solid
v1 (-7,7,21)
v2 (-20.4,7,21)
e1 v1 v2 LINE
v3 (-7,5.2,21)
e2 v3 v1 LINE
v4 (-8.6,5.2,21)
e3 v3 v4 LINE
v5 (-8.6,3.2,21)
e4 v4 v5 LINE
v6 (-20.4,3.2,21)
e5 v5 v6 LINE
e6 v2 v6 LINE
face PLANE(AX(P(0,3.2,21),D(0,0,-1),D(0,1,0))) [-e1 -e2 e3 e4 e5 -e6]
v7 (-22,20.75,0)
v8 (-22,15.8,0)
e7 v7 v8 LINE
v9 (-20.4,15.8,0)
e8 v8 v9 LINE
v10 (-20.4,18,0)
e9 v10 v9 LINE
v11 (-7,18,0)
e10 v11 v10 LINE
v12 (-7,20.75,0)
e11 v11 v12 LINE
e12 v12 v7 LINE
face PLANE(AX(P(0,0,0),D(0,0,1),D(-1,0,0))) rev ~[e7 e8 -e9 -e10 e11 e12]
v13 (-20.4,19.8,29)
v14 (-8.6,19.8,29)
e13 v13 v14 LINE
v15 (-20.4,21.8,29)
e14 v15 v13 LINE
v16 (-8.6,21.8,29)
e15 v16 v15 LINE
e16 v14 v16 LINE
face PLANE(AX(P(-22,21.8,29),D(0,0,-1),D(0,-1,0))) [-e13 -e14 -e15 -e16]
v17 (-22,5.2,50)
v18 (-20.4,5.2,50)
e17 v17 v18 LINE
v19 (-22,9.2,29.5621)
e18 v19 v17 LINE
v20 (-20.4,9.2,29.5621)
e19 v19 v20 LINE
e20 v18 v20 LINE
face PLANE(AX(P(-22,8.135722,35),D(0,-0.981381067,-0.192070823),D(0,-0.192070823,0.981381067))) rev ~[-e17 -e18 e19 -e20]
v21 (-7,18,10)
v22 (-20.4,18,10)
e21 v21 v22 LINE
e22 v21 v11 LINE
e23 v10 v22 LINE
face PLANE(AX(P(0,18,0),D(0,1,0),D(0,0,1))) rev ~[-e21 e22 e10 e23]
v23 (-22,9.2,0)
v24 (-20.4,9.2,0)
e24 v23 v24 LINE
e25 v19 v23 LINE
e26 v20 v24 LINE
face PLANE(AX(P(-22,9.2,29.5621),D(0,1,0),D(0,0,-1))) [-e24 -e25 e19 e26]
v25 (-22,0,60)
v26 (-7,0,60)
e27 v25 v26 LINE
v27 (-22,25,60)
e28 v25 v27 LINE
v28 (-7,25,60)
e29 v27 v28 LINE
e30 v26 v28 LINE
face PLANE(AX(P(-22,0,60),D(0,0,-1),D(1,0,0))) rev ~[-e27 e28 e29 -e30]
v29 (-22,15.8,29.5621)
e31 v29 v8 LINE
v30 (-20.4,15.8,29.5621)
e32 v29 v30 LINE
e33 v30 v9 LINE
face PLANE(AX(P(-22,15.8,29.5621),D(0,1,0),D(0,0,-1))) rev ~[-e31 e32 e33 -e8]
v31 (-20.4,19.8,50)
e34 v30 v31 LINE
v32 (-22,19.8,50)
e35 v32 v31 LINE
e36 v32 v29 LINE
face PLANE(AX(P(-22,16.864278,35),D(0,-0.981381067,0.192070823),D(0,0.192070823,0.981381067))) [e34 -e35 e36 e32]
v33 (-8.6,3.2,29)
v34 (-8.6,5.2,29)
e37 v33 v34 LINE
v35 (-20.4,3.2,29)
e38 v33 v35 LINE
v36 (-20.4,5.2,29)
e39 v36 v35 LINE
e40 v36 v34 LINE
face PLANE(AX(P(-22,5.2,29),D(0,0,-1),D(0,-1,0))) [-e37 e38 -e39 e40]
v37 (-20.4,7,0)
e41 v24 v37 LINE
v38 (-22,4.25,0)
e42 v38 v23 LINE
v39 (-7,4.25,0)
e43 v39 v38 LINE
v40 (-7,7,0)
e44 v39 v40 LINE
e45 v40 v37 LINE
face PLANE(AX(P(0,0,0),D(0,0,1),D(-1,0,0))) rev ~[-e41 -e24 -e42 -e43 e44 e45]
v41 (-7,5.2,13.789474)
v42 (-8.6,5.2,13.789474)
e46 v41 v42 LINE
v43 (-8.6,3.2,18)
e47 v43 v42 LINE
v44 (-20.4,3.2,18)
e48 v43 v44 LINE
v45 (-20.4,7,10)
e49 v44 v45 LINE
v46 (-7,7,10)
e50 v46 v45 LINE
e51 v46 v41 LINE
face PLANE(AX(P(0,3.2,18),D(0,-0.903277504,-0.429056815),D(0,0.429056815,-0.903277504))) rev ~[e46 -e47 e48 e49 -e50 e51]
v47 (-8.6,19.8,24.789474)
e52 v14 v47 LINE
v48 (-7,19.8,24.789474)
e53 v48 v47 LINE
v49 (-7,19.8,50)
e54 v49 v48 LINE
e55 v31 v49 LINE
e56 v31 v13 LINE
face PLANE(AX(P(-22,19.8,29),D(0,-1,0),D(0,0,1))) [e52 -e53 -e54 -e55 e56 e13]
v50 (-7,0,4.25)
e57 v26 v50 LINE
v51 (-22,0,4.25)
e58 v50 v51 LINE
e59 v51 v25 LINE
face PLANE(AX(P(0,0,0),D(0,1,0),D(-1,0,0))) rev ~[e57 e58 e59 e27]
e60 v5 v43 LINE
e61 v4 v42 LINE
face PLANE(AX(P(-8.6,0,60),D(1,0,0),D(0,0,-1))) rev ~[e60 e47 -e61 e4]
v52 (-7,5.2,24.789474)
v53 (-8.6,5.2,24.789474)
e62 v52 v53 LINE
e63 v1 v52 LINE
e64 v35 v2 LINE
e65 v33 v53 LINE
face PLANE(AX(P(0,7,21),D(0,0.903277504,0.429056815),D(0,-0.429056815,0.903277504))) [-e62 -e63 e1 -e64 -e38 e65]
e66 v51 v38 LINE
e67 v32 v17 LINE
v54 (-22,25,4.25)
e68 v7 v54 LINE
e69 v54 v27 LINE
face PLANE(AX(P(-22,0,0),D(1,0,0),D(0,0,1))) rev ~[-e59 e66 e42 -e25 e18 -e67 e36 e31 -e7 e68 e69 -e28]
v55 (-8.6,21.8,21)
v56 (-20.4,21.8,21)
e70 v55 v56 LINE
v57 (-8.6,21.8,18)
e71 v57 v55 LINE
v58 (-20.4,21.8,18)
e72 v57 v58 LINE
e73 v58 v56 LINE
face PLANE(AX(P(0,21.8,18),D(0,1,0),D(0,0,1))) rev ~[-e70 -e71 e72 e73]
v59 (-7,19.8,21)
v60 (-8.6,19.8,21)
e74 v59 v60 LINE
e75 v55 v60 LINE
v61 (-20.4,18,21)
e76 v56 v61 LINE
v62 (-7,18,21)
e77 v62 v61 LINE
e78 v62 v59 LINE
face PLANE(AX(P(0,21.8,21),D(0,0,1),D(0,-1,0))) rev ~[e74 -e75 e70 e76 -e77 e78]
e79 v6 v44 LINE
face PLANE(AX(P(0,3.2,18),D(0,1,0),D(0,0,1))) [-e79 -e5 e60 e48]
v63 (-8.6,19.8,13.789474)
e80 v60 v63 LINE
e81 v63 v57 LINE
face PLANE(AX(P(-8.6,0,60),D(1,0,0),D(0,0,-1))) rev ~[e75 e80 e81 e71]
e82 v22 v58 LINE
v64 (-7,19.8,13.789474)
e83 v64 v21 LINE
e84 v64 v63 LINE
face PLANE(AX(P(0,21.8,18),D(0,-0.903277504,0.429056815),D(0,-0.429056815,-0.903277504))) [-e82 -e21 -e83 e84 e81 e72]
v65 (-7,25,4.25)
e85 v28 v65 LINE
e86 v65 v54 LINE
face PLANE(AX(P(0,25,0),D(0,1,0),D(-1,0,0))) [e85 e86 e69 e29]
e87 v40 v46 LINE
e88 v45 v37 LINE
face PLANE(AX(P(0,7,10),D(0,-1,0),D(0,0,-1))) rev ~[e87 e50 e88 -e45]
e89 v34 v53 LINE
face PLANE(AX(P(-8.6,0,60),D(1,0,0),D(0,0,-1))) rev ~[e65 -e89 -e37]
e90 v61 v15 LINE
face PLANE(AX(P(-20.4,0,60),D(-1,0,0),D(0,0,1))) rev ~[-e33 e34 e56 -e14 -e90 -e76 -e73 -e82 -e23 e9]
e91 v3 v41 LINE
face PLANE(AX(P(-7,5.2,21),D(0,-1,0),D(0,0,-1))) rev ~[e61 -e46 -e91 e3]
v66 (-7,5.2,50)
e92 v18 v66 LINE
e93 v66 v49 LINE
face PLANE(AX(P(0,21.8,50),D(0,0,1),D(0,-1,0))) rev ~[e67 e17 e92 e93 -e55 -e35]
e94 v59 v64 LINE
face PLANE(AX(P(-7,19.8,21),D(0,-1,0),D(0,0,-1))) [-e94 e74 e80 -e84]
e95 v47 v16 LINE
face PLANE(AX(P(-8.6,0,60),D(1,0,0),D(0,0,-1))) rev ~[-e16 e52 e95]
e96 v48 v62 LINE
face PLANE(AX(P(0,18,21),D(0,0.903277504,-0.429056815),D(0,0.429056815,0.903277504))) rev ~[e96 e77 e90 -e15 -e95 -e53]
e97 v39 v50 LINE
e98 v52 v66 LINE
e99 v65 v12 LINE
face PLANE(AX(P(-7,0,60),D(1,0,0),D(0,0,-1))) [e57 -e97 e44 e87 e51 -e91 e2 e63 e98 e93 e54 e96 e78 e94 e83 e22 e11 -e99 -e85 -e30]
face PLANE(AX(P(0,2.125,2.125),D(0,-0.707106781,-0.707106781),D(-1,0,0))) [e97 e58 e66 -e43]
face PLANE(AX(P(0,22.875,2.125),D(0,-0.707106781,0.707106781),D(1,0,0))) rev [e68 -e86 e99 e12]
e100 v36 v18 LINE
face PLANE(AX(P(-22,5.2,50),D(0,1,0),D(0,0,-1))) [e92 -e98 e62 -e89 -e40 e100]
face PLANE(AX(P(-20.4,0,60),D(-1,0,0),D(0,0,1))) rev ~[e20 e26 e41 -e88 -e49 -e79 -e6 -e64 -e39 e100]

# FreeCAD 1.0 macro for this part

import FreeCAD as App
import Part
import Sketcher

V = App.Vector


def edges_at(feature, points):
    """Names of the edges that pass closest to the given points."""
    edges = feature.Shape.Edges
    near = lambda p: min(range(len(edges)), key=lambda i: edges[i].distToShape(Part.Vertex(*p))[0])
    return sorted({f"Edge{near(p) + 1}" for p in points})

doc = App.newDocument("Part")
body = doc.addObject("PartDesign::Body", "Body")

# Sketch on XZ plane
sketch1 = body.newObject("Sketcher::SketchObject", "Sketch")
sketch1.AttachmentSupport = (doc.getObject("XZ_Plane"), [""])
sketch1.MapMode = "FlatFace"
sketch1.addGeometry([
    Part.LineSegment(V(0, 60, 0), V(0, 0, 0)),
    Part.LineSegment(V(0, 0, 0), V(-22, 0, 0)),
    Part.LineSegment(V(-22, 0, 0), V(-22, 60, 0)),
    Part.LineSegment(V(-22, 60, 0), V(0, 60, 0)),
], False)
sketch1.addConstraint([
    Sketcher.Constraint("Coincident", 0, 2, 1, 1),
    Sketcher.Constraint("Coincident", 1, 2, 2, 1),
    Sketcher.Constraint("Coincident", 2, 2, 3, 1),
    Sketcher.Constraint("Coincident", 3, 2, 0, 1),
    Sketcher.Constraint("Vertical", 0),
    Sketcher.Constraint("Horizontal", 1),
    Sketcher.Constraint("Vertical", 2),
    Sketcher.Constraint("Horizontal", 3),
    Sketcher.Constraint("Coincident", 0, 2, -1, 1),
    Sketcher.Constraint("DistanceX", 1, 2, 1, 1, 22.0),
    Sketcher.Constraint("DistanceY", 0, 2, 0, 1, 60.0),
])
pad1 = body.newObject("PartDesign::Pad", "Pad")
pad1.Profile = sketch1
pad1.Length = 25
pad1.Reversed = True

# Sketch on YZ plane
sketch2 = body.newObject("Sketcher::SketchObject", "Sketch001")
sketch2.AttachmentSupport = (doc.getObject("YZ_Plane"), [""])
sketch2.MapMode = "FlatFace"
sketch2.addGeometry([
    Part.LineSegment(V(18, 32, 0), V(21.8, 40, 0)),  # 0
    Part.LineSegment(V(21.8, 40, 0), V(3.2, 40, 0)),  # 1
    Part.LineSegment(V(3.2, 40, 0), V(7, 32, 0)),  # 2
    Part.LineSegment(V(7, 32, 0), V(3.2, 32, 0)),  # 3
    Part.LineSegment(V(3.2, 32, 0), V(3.2, 29, 0)),  # 4
    Part.LineSegment(V(3.2, 29, 0), V(7, 21, 0)),  # 5
    Part.LineSegment(V(7, 21, 0), V(3.2, 21, 0)),  # 6
    Part.LineSegment(V(3.2, 21, 0), V(3.2, 18, 0)),  # 7
    Part.LineSegment(V(3.2, 18, 0), V(7, 10, 0)),  # 8
    Part.LineSegment(V(7, 10, 0), V(7, 0, 0)),  # 9
    Part.LineSegment(V(7, 0, 0), V(18, 0, 0)),  # 10
    Part.LineSegment(V(18, 0, 0), V(18, 10, 0)),  # 11
    Part.LineSegment(V(18, 10, 0), V(21.8, 18, 0)),  # 12
    Part.LineSegment(V(21.8, 18, 0), V(21.8, 21, 0)),  # 13
    Part.LineSegment(V(21.8, 21, 0), V(18, 21, 0)),  # 14
    Part.LineSegment(V(18, 21, 0), V(21.8, 29, 0)),  # 15
    Part.LineSegment(V(21.8, 29, 0), V(21.8, 32, 0)),  # 16
    Part.LineSegment(V(21.8, 32, 0), V(18, 32, 0)),  # 17
], False)
sketch2.addConstraint([
    Sketcher.Constraint("Coincident", 0, 2, 1, 1),
    Sketcher.Constraint("Coincident", 1, 2, 2, 1),
    Sketcher.Constraint("Coincident", 2, 2, 3, 1),
    Sketcher.Constraint("Coincident", 3, 2, 4, 1),
    Sketcher.Constraint("Coincident", 4, 2, 5, 1),
    Sketcher.Constraint("Coincident", 5, 2, 6, 1),
    Sketcher.Constraint("Coincident", 6, 2, 7, 1),
    Sketcher.Constraint("Coincident", 7, 2, 8, 1),
    Sketcher.Constraint("Coincident", 8, 2, 9, 1),
    Sketcher.Constraint("Coincident", 9, 2, 10, 1),
    Sketcher.Constraint("Coincident", 10, 2, 11, 1),
    Sketcher.Constraint("Coincident", 11, 2, 12, 1),
    Sketcher.Constraint("Coincident", 12, 2, 13, 1),
    Sketcher.Constraint("Coincident", 13, 2, 14, 1),
    Sketcher.Constraint("Coincident", 14, 2, 15, 1),
    Sketcher.Constraint("Coincident", 15, 2, 16, 1),
    Sketcher.Constraint("Coincident", 16, 2, 17, 1),
    Sketcher.Constraint("Coincident", 17, 2, 0, 1),
    Sketcher.Constraint("Horizontal", 1),
    Sketcher.Constraint("Horizontal", 3),
    Sketcher.Constraint("Vertical", 4),
    Sketcher.Constraint("Horizontal", 6),
    Sketcher.Constraint("Vertical", 7),
    Sketcher.Constraint("Vertical", 9),
    Sketcher.Constraint("Horizontal", 10),
    Sketcher.Constraint("Vertical", 11),
    Sketcher.Constraint("Vertical", 13),
    Sketcher.Constraint("Horizontal", 14),
    Sketcher.Constraint("Vertical", 16),
    Sketcher.Constraint("Horizontal", 17),
    Sketcher.Constraint("PointOnObject", 9, 2, -1),
    Sketcher.Constraint("Parallel", 2, 5),
    Sketcher.Constraint("Parallel", 5, 8),
    Sketcher.Constraint("Parallel", 0, 12),
    Sketcher.Constraint("Parallel", 12, 15),
    Sketcher.Constraint("Horizontal", 8, 2, 11, 2),
    Sketcher.Constraint("Horizontal", 7, 2, 12, 2),
    Sketcher.Constraint("Horizontal", 6, 2, 13, 2),
    Sketcher.Constraint("Horizontal", 4, 2, 15, 2),
    Sketcher.Constraint("Horizontal", 3, 2, 16, 2),
    Sketcher.Constraint("Vertical", 1, 2, 3, 2),
    Sketcher.Constraint("Vertical", 2, 2, 5, 2),
    Sketcher.Constraint("Vertical", 4, 2, 6, 2),
    Sketcher.Constraint("Vertical", 5, 2, 8, 2),
    Sketcher.Constraint("Vertical", 0, 2, 12, 2),
    Sketcher.Constraint("Vertical", 11, 2, 14, 2),
    Sketcher.Constraint("Equal", 6, 14),
    Sketcher.Constraint("Equal", 4, 7),
    Sketcher.Constraint("DistanceY", 4, 2, 4, 1, 3.0),
    Sketcher.Constraint("DistanceY", -1, 1, 0, 2, 40.0),
    Sketcher.Constraint("DistanceY", 2, 2, 1, 2, 8.0),
    Sketcher.Constraint("DistanceX", -1, 1, 1, 2, 3.2),
    Sketcher.Constraint("DistanceX", 10, 1, 10, 2, 11.0),
    Sketcher.Constraint("DistanceX", 1, 2, 1, 1, 18.6),
])
pocket1 = body.newObject("PartDesign::Pocket", "Pocket")
pocket1.Profile = sketch2
pocket1.Type = "ThroughAll"
doc.recompute()

chamfer = body.newObject("PartDesign::Chamfer", "Chamfer")
chamfer.Base = (pocket1, edges_at(pocket1, [(-11, 0, 0), (-11, 25, 0)]))
chamfer.Size = 4.25

# Sketch on YZ plane
sketch3 = body.newObject("Sketcher::SketchObject", "Sketch002")
sketch3.AttachmentSupport = (doc.getObject("YZ_Plane"), [""])
sketch3.MapMode = "FlatFace"
sketch3.addGeometry([
    Part.LineSegment(V(21.8, 29, 0), V(21.8, 50, 0)),  # 0
    Part.LineSegment(V(21.8, 50, 0), V(3.2, 50, 0)),  # 1
    Part.LineSegment(V(3.2, 50, 0), V(3.2, 30, 0)),  # 2
    Part.LineSegment(V(3.2, 30, 0), V(12, 30, 0)),  # 3
    Part.LineSegment(V(12, 30, 0), V(12, 40, 0)),  # 4
    Part.LineSegment(V(12, 40, 0), V(16.6, 40, 0)),  # 5
    Part.LineSegment(V(16.6, 40, 0), V(16.6, 29, 0)),  # 6
    Part.LineSegment(V(16.6, 29, 0), V(21.8, 29, 0)),  # 7
], False)
sketch3.addConstraint([
    Sketcher.Constraint("Coincident", 0, 2, 1, 1),
    Sketcher.Constraint("Coincident", 1, 2, 2, 1),
    Sketcher.Constraint("Coincident", 2, 2, 3, 1),
    Sketcher.Constraint("Coincident", 3, 2, 4, 1),
    Sketcher.Constraint("Coincident", 4, 2, 5, 1),
    Sketcher.Constraint("Coincident", 5, 2, 6, 1),
    Sketcher.Constraint("Coincident", 6, 2, 7, 1),
    Sketcher.Constraint("Coincident", 7, 2, 0, 1),
    Sketcher.Constraint("Vertical", 0),
    Sketcher.Constraint("Horizontal", 1),
    Sketcher.Constraint("Vertical", 2),
    Sketcher.Constraint("Horizontal", 3),
    Sketcher.Constraint("Vertical", 4),
    Sketcher.Constraint("Horizontal", 5),
    Sketcher.Constraint("Vertical", 6),
    Sketcher.Constraint("Horizontal", 7),
    Sketcher.Constraint("DistanceY", 0, 1, 0, 2, 21.0),
    Sketcher.Constraint("DistanceY", 2, 2, 2, 1, 20.0),
    Sketcher.Constraint("DistanceY", 4, 1, 4, 2, 10.0),
    Sketcher.Constraint("DistanceX", 1, 2, 1, 1, 18.6),
    Sketcher.Constraint("DistanceX", 3, 1, 3, 2, 8.8),
    Sketcher.Constraint("DistanceY", -1, 1, 0, 2, 50.0),
    Sketcher.Constraint("DistanceX", -1, 1, 3, 2, 12.0),
    Sketcher.Constraint("DistanceX", 5, 1, 5, 2, 4.575),
])
pocket2 = body.newObject("PartDesign::Pocket", "Pocket001")
pocket2.Profile = sketch3
pocket2.Type = "ThroughAll"

# Sketch on YZ plane
sketch4 = body.newObject("Sketcher::SketchObject", "Sketch003")
sketch4.AttachmentSupport = (doc.getObject("YZ_Plane"), [""])
sketch4.MapMode = "FlatFace"
sketch4.addGeometry([
    Part.LineSegment(V(7, 21, 0), V(3.2, 29, 0)),  # 0
    Part.LineSegment(V(3.2, 29, 0), V(3.2, 50, 0)),  # 1
    Part.LineSegment(V(3.2, 50, 0), V(21.8, 50, 0)),  # 2
    Part.LineSegment(V(21.8, 50, 0), V(21.8, 29, 0)),  # 3
    Part.LineSegment(V(21.8, 29, 0), V(18, 21, 0)),  # 4
    Part.LineSegment(V(18, 21, 0), V(21.8, 21, 0)),  # 5
    Part.LineSegment(V(21.8, 21, 0), V(21.8, 18, 0)),  # 6
    Part.LineSegment(V(21.8, 18, 0), V(18, 10, 0)),  # 7
    Part.LineSegment(V(18, 10, 0), V(18, 0, 0)),  # 8
    Part.LineSegment(V(18, 0, 0), V(20.8, 0, 0)),  # 9
    Part.LineSegment(V(20.8, 0, 0), V(25, 4.2, 0)),  # 10
    Part.LineSegment(V(25, 4.2, 0), V(25, 60, 0)),  # 11
    Part.LineSegment(V(25, 60, 0), V(0, 60, 0)),  # 12
    Part.LineSegment(V(0, 60, 0), V(0, 4.2, 0)),  # 13
    Part.LineSegment(V(0, 4.2, 0), V(4.2, 0, 0)),  # 14
    Part.LineSegment(V(4.2, 0, 0), V(7, 0, 0)),  # 15
    Part.LineSegment(V(7, 0, 0), V(7, 10, 0)),  # 16
    Part.LineSegment(V(7, 10, 0), V(3.2, 18, 0)),  # 17
    Part.LineSegment(V(3.2, 18, 0), V(3.2, 21, 0)),  # 18
    Part.LineSegment(V(3.2, 21, 0), V(7, 21, 0)),  # 19
], False)
sketch4.addConstraint([
    Sketcher.Constraint("Coincident", 0, 2, 1, 1),
    Sketcher.Constraint("Coincident", 1, 2, 2, 1),
    Sketcher.Constraint("Coincident", 2, 2, 3, 1),
    Sketcher.Constraint("Coincident", 3, 2, 4, 1),
    Sketcher.Constraint("Coincident", 4, 2, 5, 1),
    Sketcher.Constraint("Coincident", 5, 2, 6, 1),
    Sketcher.Constraint("Coincident", 6, 2, 7, 1),
    Sketcher.Constraint("Coincident", 7, 2, 8, 1),
    Sketcher.Constraint("Coincident", 8, 2, 9, 1),
    Sketcher.Constraint("Coincident", 9, 2, 10, 1),
    Sketcher.Constraint("Coincident", 10, 2, 11, 1),
    Sketcher.Constraint("Coincident", 11, 2, 12, 1),
    Sketcher.Constraint("Coincident", 12, 2, 13, 1),
    Sketcher.Constraint("Coincident", 13, 2, 14, 1),
    Sketcher.Constraint("Coincident", 14, 2, 15, 1),
    Sketcher.Constraint("Coincident", 15, 2, 16, 1),
    Sketcher.Constraint("Coincident", 16, 2, 17, 1),
    Sketcher.Constraint("Coincident", 17, 2, 18, 1),
    Sketcher.Constraint("Coincident", 18, 2, 19, 1),
    Sketcher.Constraint("Coincident", 19, 2, 0, 1),
    Sketcher.Constraint("Vertical", 1),
    Sketcher.Constraint("Horizontal", 2),
    Sketcher.Constraint("Vertical", 3),
    Sketcher.Constraint("Horizontal", 5),
    Sketcher.Constraint("Vertical", 6),
    Sketcher.Constraint("Vertical", 8),
    Sketcher.Constraint("Horizontal", 9),
    Sketcher.Constraint("Vertical", 11),
    Sketcher.Constraint("Horizontal", 12),
    Sketcher.Constraint("Vertical", 13),
    Sketcher.Constraint("Horizontal", 15),
    Sketcher.Constraint("Vertical", 16),
    Sketcher.Constraint("Vertical", 18),
    Sketcher.Constraint("Horizontal", 19),
    Sketcher.Constraint("PointOnObject", 8, 2, -1),
    Sketcher.Constraint("PointOnObject", 12, 2, -2),
    Sketcher.Constraint("PointOnObject", 14, 2, -1),
    Sketcher.Constraint("Parallel", 4, 7),
    Sketcher.Constraint("Perpendicular", 10, 14),
    Sketcher.Constraint("Parallel", 0, 17),
    Sketcher.Constraint("Horizontal", 0, 2, 3, 2),
    Sketcher.Constraint("Horizontal", 10, 2, 13, 2),
    Sketcher.Constraint("Horizontal", 7, 2, 16, 2),
    Sketcher.Constraint("Horizontal", 6, 2, 17, 2),
    Sketcher.Constraint("Horizontal", 5, 2, 18, 2),
    Sketcher.Constraint("Vertical", 3, 2, 5, 2),
    Sketcher.Constraint("Vertical", 4, 2, 7, 2),
    Sketcher.Constraint("Vertical", 1, 2, 17, 2),
    Sketcher.Constraint("Equal", 9, 15),
    Sketcher.Constraint("Equal", 5, 19),
    Sketcher.Constraint("Equal", 10, 14),
    Sketcher.Constraint("DistanceX", 12, 2, 12, 1, 25.0),
    Sketcher.Constraint("DistanceY", 1, 1, 1, 2, 21.0),
    Sketcher.Constraint("DistanceY", 6, 2, 6, 1, 3.0),
    Sketcher.Constraint("DistanceY", 8, 2, 8, 1, 10.0),
    Sketcher.Constraint("DistanceX", 2, 1, 2, 2, 18.6),
    Sketcher.Constraint("DistanceX", 5, 1, 5, 2, 3.8),
    Sketcher.Constraint("DistanceY", -1, 1, 0, 2, 29.0),
    Sketcher.Constraint("DistanceY", -1, 1, 11, 2, 60.0),
    Sketcher.Constraint("DistanceX", 9, 1, 9, 2, 2.75),
])
pocket3 = body.newObject("PartDesign::Pocket", "Pocket002")
pocket3.Profile = sketch4
pocket3.Length = 7

# Sketch on YZ plane
sketch5 = body.newObject("Sketcher::SketchObject", "Sketch004")
sketch5.AttachmentSupport = (doc.getObject("YZ_Plane"), [""])
sketch5.MapMode = "FlatFace"
sketch5.AttachmentOffset = App.Placement(V(0, 0, -22), App.Rotation())
sketch5.addGeometry([
    Part.LineSegment(V(19.8, 50, 0), V(21.8, 50, 0)),  # 0
    Part.LineSegment(V(21.8, 50, 0), V(21.8, 29, 0)),  # 1
    Part.LineSegment(V(21.8, 29, 0), V(19.8, 29, 0)),  # 2
    Part.LineSegment(V(19.8, 29, 0), V(19.8, 50, 0)),  # 3
    Part.LineSegment(V(3.2, 50, 0), V(5.2, 50, 0)),  # 4
    Part.LineSegment(V(5.2, 50, 0), V(5.2, 29, 0)),  # 5
    Part.LineSegment(V(5.2, 29, 0), V(3.2, 29, 0)),  # 6
    Part.LineSegment(V(3.2, 29, 0), V(3.2, 50, 0)),  # 7
], False)
sketch5.addConstraint([
    Sketcher.Constraint("Coincident", 0, 2, 1, 1),
    Sketcher.Constraint("Coincident", 1, 2, 2, 1),
    Sketcher.Constraint("Coincident", 2, 2, 3, 1),
    Sketcher.Constraint("Coincident", 3, 2, 0, 1),
    Sketcher.Constraint("Coincident", 4, 2, 5, 1),
    Sketcher.Constraint("Coincident", 5, 2, 6, 1),
    Sketcher.Constraint("Coincident", 6, 2, 7, 1),
    Sketcher.Constraint("Coincident", 7, 2, 4, 1),
    Sketcher.Constraint("Horizontal", 0),
    Sketcher.Constraint("Vertical", 1),
    Sketcher.Constraint("Horizontal", 2),
    Sketcher.Constraint("Vertical", 3),
    Sketcher.Constraint("Horizontal", 4),
    Sketcher.Constraint("Vertical", 5),
    Sketcher.Constraint("Horizontal", 6),
    Sketcher.Constraint("Vertical", 7),
    Sketcher.Constraint("Horizontal", 3, 2, 4, 2),
    Sketcher.Constraint("Horizontal", 2, 2, 5, 2),
    Sketcher.Constraint("Equal", 2, 4),
    Sketcher.Constraint("DistanceX", 0, 1, 0, 2, 2.0),
    Sketcher.Constraint("DistanceY", 1, 2, 1, 1, 21.0),
    Sketcher.Constraint("DistanceY", -1, 1, 0, 2, 50.0),
    Sketcher.Constraint("DistanceX", -1, 1, 0, 2, 21.8),
    Sketcher.Constraint("DistanceX", -1, 1, 4, 2, 5.2),
])
pad2 = body.newObject("PartDesign::Pad", "Pad001")
pad2.Profile = sketch5
pad2.Length = 15

# Sketch on YZ plane
sketch6 = body.newObject("Sketcher::SketchObject", "Sketch005")
sketch6.AttachmentSupport = (doc.getObject("YZ_Plane"), [""])
sketch6.MapMode = "FlatFace"
sketch6.AttachmentOffset = App.Placement(V(0, 0, -22), App.Rotation())
sketch6.addGeometry([
    Part.LineSegment(V(19.8, 50, 0), V(19.8, 29, 0)),  # 0
    Part.LineSegment(V(19.8, 29, 0), V(21.8, 29, 0)),  # 1
    Part.LineSegment(V(21.8, 29, 0), V(18, 21, 0)),  # 2
    Part.LineSegment(V(18, 21, 0), V(21.8, 21, 0)),  # 3
    Part.LineSegment(V(21.8, 21, 0), V(21.8, 18, 0)),  # 4
    Part.LineSegment(V(21.8, 18, 0), V(18, 10, 0)),  # 5
    Part.LineSegment(V(18, 10, 0), V(18, 0, 0)),  # 6
    Part.LineSegment(V(18, 0, 0), V(15.8, 0, 0)),  # 7
    Part.LineSegment(V(15.8, 0, 0), V(15.8, 29.6, 0)),  # 8
    Part.LineSegment(V(15.8, 29.6, 0), V(19.8, 50, 0)),  # 9
    Part.LineSegment(V(5.2, 50, 0), V(9.2, 29.6, 0)),  # 10
    Part.LineSegment(V(9.2, 29.6, 0), V(9.2, 0, 0)),  # 11
    Part.LineSegment(V(9.2, 0, 0), V(7, 0, 0)),  # 12
    Part.LineSegment(V(7, 0, 0), V(7, 10, 0)),  # 13
    Part.LineSegment(V(7, 10, 0), V(3.2, 18, 0)),  # 14
    Part.LineSegment(V(3.2, 18, 0), V(3.2, 21, 0)),  # 15
    Part.LineSegment(V(3.2, 21, 0), V(7, 21, 0)),  # 16
    Part.LineSegment(V(7, 21, 0), V(3.2, 29, 0)),  # 17
    Part.LineSegment(V(3.2, 29, 0), V(5.2, 29, 0)),  # 18
    Part.LineSegment(V(5.2, 29, 0), V(5.2, 50, 0)),  # 19
], False)
sketch6.addConstraint([
    Sketcher.Constraint("Coincident", 0, 2, 1, 1),
    Sketcher.Constraint("Coincident", 1, 2, 2, 1),
    Sketcher.Constraint("Coincident", 2, 2, 3, 1),
    Sketcher.Constraint("Coincident", 3, 2, 4, 1),
    Sketcher.Constraint("Coincident", 4, 2, 5, 1),
    Sketcher.Constraint("Coincident", 5, 2, 6, 1),
    Sketcher.Constraint("Coincident", 6, 2, 7, 1),
    Sketcher.Constraint("Coincident", 7, 2, 8, 1),
    Sketcher.Constraint("Coincident", 8, 2, 9, 1),
    Sketcher.Constraint("Coincident", 9, 2, 0, 1),
    Sketcher.Constraint("Coincident", 10, 2, 11, 1),
    Sketcher.Constraint("Coincident", 11, 2, 12, 1),
    Sketcher.Constraint("Coincident", 12, 2, 13, 1),
    Sketcher.Constraint("Coincident", 13, 2, 14, 1),
    Sketcher.Constraint("Coincident", 14, 2, 15, 1),
    Sketcher.Constraint("Coincident", 15, 2, 16, 1),
    Sketcher.Constraint("Coincident", 16, 2, 17, 1),
    Sketcher.Constraint("Coincident", 17, 2, 18, 1),
    Sketcher.Constraint("Coincident", 18, 2, 19, 1),
    Sketcher.Constraint("Coincident", 19, 2, 10, 1),
    Sketcher.Constraint("Vertical", 0),
    Sketcher.Constraint("Horizontal", 1),
    Sketcher.Constraint("Horizontal", 3),
    Sketcher.Constraint("Vertical", 4),
    Sketcher.Constraint("Vertical", 6),
    Sketcher.Constraint("Horizontal", 7),
    Sketcher.Constraint("Vertical", 8),
    Sketcher.Constraint("Vertical", 11),
    Sketcher.Constraint("Horizontal", 12),
    Sketcher.Constraint("Vertical", 13),
    Sketcher.Constraint("Vertical", 15),
    Sketcher.Constraint("Horizontal", 16),
    Sketcher.Constraint("Horizontal", 18),
    Sketcher.Constraint("Vertical", 19),
    Sketcher.Constraint("PointOnObject", 6, 2, -1),
    Sketcher.Constraint("PointOnObject", 11, 2, -1),
    Sketcher.Constraint("Parallel", 2, 5),
    Sketcher.Constraint("Parallel", 14, 17),
    Sketcher.Constraint("Horizontal", 8, 2, 10, 2),
    Sketcher.Constraint("Horizontal", 5, 2, 13, 2),
    Sketcher.Constraint("Horizontal", 4, 2, 14, 2),
    Sketcher.Constraint("Horizontal", 3, 2, 15, 2),
    Sketcher.Constraint("Horizontal", 1, 2, 17, 2),
    Sketcher.Constraint("Horizontal", 9, 2, 19, 2),
    Sketcher.Constraint("Vertical", 1, 2, 3, 2),
    Sketcher.Constraint("Vertical", 2, 2, 5, 2),
    Sketcher.Constraint("Vertical", 13, 2, 16, 2),
    Sketcher.Constraint("Equal", 7, 12),
    Sketcher.Constraint("Equal", 3, 16),
    Sketcher.Constraint("Equal", 1, 18),
    Sketcher.Constraint("DistanceX", 8, 2, 0, 2, 4.0),
    Sketcher.Constraint("DistanceX", 1, 1, 1, 2, 2.0),
    Sketcher.Constraint("DistanceY", 0, 2, 0, 1, 21.0),
    Sketcher.Constraint("DistanceY", 4, 2, 4, 1, 3.0),
    Sketcher.Constraint("DistanceY", 6, 2, 6, 1, 10.0),
    Sketcher.Constraint("DistanceX", 3, 1, 3, 2, 3.8),
    Sketcher.Constraint("DistanceY", -1, 1, 0, 2, 29.0),
    Sketcher.Constraint("DistanceX", -1, 1, 2, 2, 18.0),
    Sketcher.Constraint("DistanceX", -1, 1, 12, 2, 7.0),
    Sketcher.Constraint("DistanceY", 8, 1, 8, 2, 29.562),
])
pad3 = body.newObject("PartDesign::Pad", "Pad002")
pad3.Profile = sketch6
pad3.Length = 1.6

# Sketch on YZ plane
sketch7 = body.newObject("Sketcher::SketchObject", "Sketch006")
sketch7.AttachmentSupport = (doc.getObject("YZ_Plane"), [""])
sketch7.MapMode = "FlatFace"
sketch7.AttachmentOffset = App.Placement(V(0, 0, -7), App.Rotation())
sketch7.addGeometry([
    Part.LineSegment(V(21.8, 29, 0), V(19.8, 29, 0)),  # 0
    Part.LineSegment(V(19.8, 29, 0), V(19.8, 24.8, 0)),  # 1
    Part.LineSegment(V(19.8, 24.8, 0), V(21.8, 29, 0)),  # 2
    Part.LineSegment(V(21.8, 21, 0), V(19.8, 21, 0)),  # 3
    Part.LineSegment(V(19.8, 21, 0), V(19.8, 13.8, 0)),  # 4
    Part.LineSegment(V(19.8, 13.8, 0), V(21.8, 18, 0)),  # 5
    Part.LineSegment(V(21.8, 18, 0), V(21.8, 21, 0)),  # 6
    Part.LineSegment(V(5.2, 24.8, 0), V(5.2, 29, 0)),  # 7
    Part.LineSegment(V(5.2, 29, 0), V(3.2, 29, 0)),  # 8
    Part.LineSegment(V(3.2, 29, 0), V(5.2, 24.8, 0)),  # 9
    Part.LineSegment(V(5.2, 13.8, 0), V(5.2, 21, 0)),  # 10
    Part.LineSegment(V(5.2, 21, 0), V(3.2, 21, 0)),  # 11
    Part.LineSegment(V(3.2, 21, 0), V(3.2, 18, 0)),  # 12
    Part.LineSegment(V(3.2, 18, 0), V(5.2, 13.8, 0)),  # 13
], False)
sketch7.addConstraint([
    Sketcher.Constraint("Coincident", 0, 2, 1, 1),
    Sketcher.Constraint("Coincident", 1, 2, 2, 1),
    Sketcher.Constraint("Coincident", 2, 2, 0, 1),
    Sketcher.Constraint("Coincident", 3, 2, 4, 1),
    Sketcher.Constraint("Coincident", 4, 2, 5, 1),
    Sketcher.Constraint("Coincident", 5, 2, 6, 1),
    Sketcher.Constraint("Coincident", 6, 2, 3, 1),
    Sketcher.Constraint("Coincident", 7, 2, 8, 1),
    Sketcher.Constraint("Coincident", 8, 2, 9, 1),
    Sketcher.Constraint("Coincident", 9, 2, 7, 1),
    Sketcher.Constraint("Coincident", 10, 2, 11, 1),
    Sketcher.Constraint("Coincident", 11, 2, 12, 1),
    Sketcher.Constraint("Coincident", 12, 2, 13, 1),
    Sketcher.Constraint("Coincident", 13, 2, 10, 1),
    Sketcher.Constraint("Horizontal", 0),
    Sketcher.Constraint("Vertical", 1),
    Sketcher.Constraint("Horizontal", 3),
    Sketcher.Constraint("Vertical", 4),
    Sketcher.Constraint("Vertical", 6),
    Sketcher.Constraint("Vertical", 7),
    Sketcher.Constraint("Horizontal", 8),
    Sketcher.Constraint("Vertical", 10),
    Sketcher.Constraint("Horizontal", 11),
    Sketcher.Constraint("Vertical", 12),
    Sketcher.Constraint("Parallel", 2, 5),
    Sketcher.Constraint("Parallel", 9, 13),
    Sketcher.Constraint("Horizontal", 2, 2, 7, 2),
    Sketcher.Constraint("Horizontal", 1, 2, 9, 2),
    Sketcher.Constraint("Horizontal", 6, 2, 10, 2),
    Sketcher.Constraint("Horizontal", 5, 2, 12, 2),
    Sketcher.Constraint("Horizontal", 4, 2, 13, 2),
    Sketcher.Constraint("Vertical", 1, 2, 3, 2),
    Sketcher.Constraint("Vertical", 2, 2, 5, 2),
    Sketcher.Constraint("Vertical", 9, 2, 10, 2),
    Sketcher.Constraint("Equal", 3, 8),
    Sketcher.Constraint("DistanceX", 0, 2, 0, 1, 2.0),
    Sketcher.Constraint("DistanceY", 6, 1, 6, 2, 3.0),
    Sketcher.Constraint("DistanceY", -1, 1, 0, 2, 29.0),
    Sketcher.Constraint("DistanceY", -1, 1, 3, 2, 21.0),
    Sketcher.Constraint("DistanceX", -1, 1, 0, 2, 19.8),
    Sketcher.Constraint("DistanceX", -1, 1, 7, 2, 5.2),
    Sketcher.Constraint("DistanceY", 1, 2, 1, 1, 4.2105),
])
pad4 = body.newObject("PartDesign::Pad", "Pad003")
pad4.Profile = sketch7
pad4.Length = 1.6
pad4.Reversed = True

doc.recompute()
